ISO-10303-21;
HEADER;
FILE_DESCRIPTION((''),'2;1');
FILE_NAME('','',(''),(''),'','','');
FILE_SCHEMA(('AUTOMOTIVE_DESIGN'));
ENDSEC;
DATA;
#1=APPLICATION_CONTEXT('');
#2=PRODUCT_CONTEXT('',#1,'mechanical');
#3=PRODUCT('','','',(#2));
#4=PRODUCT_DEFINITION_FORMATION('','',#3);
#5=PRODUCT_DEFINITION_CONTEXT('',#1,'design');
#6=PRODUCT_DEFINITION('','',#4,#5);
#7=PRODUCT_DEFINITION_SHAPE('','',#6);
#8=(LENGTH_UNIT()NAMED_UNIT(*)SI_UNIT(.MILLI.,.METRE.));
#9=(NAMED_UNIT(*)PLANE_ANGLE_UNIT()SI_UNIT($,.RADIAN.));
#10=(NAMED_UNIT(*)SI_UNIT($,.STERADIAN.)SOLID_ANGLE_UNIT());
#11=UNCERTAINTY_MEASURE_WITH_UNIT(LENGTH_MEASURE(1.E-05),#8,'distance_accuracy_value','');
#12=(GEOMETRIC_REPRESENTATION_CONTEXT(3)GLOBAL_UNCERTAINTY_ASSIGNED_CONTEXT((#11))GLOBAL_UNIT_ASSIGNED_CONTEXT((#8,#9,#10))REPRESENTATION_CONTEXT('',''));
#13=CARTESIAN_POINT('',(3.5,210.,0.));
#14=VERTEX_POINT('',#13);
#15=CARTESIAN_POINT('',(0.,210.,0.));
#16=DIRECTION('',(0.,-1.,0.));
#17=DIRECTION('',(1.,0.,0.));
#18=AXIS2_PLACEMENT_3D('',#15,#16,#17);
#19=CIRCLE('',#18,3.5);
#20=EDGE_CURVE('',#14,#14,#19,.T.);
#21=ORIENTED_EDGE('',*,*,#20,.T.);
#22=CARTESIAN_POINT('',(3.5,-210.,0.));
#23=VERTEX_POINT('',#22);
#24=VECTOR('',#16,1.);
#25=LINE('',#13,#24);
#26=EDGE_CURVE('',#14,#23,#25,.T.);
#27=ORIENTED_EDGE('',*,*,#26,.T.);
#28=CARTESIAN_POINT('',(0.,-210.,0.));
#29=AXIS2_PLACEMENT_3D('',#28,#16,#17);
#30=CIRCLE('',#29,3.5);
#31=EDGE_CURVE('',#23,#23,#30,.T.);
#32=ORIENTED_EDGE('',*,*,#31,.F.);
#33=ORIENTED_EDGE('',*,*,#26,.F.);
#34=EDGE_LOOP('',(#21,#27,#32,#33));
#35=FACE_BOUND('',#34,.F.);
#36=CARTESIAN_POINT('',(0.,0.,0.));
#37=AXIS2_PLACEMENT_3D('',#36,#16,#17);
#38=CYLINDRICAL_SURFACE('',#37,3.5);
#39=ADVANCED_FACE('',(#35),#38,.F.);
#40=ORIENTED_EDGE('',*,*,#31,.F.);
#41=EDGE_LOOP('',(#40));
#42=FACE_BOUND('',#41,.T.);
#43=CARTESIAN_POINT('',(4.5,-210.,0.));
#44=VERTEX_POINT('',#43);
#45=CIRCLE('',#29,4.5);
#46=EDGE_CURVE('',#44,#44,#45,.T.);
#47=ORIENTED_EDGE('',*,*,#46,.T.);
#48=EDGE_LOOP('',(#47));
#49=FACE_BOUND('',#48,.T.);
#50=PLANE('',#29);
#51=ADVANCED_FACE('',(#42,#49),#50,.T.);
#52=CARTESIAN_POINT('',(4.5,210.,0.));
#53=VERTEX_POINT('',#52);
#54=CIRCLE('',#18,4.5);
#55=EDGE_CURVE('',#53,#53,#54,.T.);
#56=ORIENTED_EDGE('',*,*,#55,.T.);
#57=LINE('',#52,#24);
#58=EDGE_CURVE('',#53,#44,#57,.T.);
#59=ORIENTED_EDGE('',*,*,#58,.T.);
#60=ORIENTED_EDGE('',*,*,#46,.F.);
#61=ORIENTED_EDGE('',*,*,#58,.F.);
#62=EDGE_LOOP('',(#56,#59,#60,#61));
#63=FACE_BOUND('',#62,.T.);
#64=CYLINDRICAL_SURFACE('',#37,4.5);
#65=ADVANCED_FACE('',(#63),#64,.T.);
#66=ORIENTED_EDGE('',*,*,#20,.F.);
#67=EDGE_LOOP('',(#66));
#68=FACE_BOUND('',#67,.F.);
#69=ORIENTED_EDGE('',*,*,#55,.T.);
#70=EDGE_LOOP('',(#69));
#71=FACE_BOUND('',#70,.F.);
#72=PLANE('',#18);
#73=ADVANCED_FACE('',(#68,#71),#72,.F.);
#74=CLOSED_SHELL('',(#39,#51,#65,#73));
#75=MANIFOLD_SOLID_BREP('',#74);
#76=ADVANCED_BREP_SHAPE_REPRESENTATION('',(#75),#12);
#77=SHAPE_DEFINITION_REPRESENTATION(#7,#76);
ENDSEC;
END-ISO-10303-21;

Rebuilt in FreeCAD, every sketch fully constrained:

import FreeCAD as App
import Part
import Sketcher
from FreeCAD import Vector
Q = App.Units.Quantity


def faces_at(feature, points):
    """Names of the faces that lie closest to the given points."""
    faces = feature.Shape.Faces
    near = lambda p: min(range(len(faces)), key=lambda i: faces[i].distToShape(Part.Vertex(*p))[0])
    return sorted({f"Face{near(p) + 1}" for p in points})

doc = App.newDocument("Part")
body = doc.addObject("PartDesign::Body", "Body")

# Sketch on XZ plane
sketch1 = doc.addObject("Sketcher::SketchObject", "Sketch")
body.addObject(sketch1)
sketch1.AttachmentSupport = (doc.XZ_Plane, [""])
sketch1.MapMode = "FlatFace"
sketch1.addGeometry(Part.Circle(Vector(0, 0, 0), Vector(0, 0, 1), 4.5), False)
sketch1.addConstraint([
    Sketcher.Constraint("Coincident", 0, 3, -1, 1),
    Sketcher.Constraint("Diameter", 0, Q("9 mm")),
])
pad1 = doc.addObject("PartDesign::Pad", "Pad")
body.addObject(pad1)
pad1.Profile = sketch1
pad1.Length = 420
pad1.Midplane = True
doc.recompute()

thickness = doc.addObject("PartDesign::Thickness", "Thickness")
body.addObject(thickness)
thickness.Base = (pad1, faces_at(pad1, [(0, -210, 0), (0, 210, 0)]))
thickness.Value = 1
thickness.Reversed = True
thickness.Join = "Arc"

doc.recompute()
